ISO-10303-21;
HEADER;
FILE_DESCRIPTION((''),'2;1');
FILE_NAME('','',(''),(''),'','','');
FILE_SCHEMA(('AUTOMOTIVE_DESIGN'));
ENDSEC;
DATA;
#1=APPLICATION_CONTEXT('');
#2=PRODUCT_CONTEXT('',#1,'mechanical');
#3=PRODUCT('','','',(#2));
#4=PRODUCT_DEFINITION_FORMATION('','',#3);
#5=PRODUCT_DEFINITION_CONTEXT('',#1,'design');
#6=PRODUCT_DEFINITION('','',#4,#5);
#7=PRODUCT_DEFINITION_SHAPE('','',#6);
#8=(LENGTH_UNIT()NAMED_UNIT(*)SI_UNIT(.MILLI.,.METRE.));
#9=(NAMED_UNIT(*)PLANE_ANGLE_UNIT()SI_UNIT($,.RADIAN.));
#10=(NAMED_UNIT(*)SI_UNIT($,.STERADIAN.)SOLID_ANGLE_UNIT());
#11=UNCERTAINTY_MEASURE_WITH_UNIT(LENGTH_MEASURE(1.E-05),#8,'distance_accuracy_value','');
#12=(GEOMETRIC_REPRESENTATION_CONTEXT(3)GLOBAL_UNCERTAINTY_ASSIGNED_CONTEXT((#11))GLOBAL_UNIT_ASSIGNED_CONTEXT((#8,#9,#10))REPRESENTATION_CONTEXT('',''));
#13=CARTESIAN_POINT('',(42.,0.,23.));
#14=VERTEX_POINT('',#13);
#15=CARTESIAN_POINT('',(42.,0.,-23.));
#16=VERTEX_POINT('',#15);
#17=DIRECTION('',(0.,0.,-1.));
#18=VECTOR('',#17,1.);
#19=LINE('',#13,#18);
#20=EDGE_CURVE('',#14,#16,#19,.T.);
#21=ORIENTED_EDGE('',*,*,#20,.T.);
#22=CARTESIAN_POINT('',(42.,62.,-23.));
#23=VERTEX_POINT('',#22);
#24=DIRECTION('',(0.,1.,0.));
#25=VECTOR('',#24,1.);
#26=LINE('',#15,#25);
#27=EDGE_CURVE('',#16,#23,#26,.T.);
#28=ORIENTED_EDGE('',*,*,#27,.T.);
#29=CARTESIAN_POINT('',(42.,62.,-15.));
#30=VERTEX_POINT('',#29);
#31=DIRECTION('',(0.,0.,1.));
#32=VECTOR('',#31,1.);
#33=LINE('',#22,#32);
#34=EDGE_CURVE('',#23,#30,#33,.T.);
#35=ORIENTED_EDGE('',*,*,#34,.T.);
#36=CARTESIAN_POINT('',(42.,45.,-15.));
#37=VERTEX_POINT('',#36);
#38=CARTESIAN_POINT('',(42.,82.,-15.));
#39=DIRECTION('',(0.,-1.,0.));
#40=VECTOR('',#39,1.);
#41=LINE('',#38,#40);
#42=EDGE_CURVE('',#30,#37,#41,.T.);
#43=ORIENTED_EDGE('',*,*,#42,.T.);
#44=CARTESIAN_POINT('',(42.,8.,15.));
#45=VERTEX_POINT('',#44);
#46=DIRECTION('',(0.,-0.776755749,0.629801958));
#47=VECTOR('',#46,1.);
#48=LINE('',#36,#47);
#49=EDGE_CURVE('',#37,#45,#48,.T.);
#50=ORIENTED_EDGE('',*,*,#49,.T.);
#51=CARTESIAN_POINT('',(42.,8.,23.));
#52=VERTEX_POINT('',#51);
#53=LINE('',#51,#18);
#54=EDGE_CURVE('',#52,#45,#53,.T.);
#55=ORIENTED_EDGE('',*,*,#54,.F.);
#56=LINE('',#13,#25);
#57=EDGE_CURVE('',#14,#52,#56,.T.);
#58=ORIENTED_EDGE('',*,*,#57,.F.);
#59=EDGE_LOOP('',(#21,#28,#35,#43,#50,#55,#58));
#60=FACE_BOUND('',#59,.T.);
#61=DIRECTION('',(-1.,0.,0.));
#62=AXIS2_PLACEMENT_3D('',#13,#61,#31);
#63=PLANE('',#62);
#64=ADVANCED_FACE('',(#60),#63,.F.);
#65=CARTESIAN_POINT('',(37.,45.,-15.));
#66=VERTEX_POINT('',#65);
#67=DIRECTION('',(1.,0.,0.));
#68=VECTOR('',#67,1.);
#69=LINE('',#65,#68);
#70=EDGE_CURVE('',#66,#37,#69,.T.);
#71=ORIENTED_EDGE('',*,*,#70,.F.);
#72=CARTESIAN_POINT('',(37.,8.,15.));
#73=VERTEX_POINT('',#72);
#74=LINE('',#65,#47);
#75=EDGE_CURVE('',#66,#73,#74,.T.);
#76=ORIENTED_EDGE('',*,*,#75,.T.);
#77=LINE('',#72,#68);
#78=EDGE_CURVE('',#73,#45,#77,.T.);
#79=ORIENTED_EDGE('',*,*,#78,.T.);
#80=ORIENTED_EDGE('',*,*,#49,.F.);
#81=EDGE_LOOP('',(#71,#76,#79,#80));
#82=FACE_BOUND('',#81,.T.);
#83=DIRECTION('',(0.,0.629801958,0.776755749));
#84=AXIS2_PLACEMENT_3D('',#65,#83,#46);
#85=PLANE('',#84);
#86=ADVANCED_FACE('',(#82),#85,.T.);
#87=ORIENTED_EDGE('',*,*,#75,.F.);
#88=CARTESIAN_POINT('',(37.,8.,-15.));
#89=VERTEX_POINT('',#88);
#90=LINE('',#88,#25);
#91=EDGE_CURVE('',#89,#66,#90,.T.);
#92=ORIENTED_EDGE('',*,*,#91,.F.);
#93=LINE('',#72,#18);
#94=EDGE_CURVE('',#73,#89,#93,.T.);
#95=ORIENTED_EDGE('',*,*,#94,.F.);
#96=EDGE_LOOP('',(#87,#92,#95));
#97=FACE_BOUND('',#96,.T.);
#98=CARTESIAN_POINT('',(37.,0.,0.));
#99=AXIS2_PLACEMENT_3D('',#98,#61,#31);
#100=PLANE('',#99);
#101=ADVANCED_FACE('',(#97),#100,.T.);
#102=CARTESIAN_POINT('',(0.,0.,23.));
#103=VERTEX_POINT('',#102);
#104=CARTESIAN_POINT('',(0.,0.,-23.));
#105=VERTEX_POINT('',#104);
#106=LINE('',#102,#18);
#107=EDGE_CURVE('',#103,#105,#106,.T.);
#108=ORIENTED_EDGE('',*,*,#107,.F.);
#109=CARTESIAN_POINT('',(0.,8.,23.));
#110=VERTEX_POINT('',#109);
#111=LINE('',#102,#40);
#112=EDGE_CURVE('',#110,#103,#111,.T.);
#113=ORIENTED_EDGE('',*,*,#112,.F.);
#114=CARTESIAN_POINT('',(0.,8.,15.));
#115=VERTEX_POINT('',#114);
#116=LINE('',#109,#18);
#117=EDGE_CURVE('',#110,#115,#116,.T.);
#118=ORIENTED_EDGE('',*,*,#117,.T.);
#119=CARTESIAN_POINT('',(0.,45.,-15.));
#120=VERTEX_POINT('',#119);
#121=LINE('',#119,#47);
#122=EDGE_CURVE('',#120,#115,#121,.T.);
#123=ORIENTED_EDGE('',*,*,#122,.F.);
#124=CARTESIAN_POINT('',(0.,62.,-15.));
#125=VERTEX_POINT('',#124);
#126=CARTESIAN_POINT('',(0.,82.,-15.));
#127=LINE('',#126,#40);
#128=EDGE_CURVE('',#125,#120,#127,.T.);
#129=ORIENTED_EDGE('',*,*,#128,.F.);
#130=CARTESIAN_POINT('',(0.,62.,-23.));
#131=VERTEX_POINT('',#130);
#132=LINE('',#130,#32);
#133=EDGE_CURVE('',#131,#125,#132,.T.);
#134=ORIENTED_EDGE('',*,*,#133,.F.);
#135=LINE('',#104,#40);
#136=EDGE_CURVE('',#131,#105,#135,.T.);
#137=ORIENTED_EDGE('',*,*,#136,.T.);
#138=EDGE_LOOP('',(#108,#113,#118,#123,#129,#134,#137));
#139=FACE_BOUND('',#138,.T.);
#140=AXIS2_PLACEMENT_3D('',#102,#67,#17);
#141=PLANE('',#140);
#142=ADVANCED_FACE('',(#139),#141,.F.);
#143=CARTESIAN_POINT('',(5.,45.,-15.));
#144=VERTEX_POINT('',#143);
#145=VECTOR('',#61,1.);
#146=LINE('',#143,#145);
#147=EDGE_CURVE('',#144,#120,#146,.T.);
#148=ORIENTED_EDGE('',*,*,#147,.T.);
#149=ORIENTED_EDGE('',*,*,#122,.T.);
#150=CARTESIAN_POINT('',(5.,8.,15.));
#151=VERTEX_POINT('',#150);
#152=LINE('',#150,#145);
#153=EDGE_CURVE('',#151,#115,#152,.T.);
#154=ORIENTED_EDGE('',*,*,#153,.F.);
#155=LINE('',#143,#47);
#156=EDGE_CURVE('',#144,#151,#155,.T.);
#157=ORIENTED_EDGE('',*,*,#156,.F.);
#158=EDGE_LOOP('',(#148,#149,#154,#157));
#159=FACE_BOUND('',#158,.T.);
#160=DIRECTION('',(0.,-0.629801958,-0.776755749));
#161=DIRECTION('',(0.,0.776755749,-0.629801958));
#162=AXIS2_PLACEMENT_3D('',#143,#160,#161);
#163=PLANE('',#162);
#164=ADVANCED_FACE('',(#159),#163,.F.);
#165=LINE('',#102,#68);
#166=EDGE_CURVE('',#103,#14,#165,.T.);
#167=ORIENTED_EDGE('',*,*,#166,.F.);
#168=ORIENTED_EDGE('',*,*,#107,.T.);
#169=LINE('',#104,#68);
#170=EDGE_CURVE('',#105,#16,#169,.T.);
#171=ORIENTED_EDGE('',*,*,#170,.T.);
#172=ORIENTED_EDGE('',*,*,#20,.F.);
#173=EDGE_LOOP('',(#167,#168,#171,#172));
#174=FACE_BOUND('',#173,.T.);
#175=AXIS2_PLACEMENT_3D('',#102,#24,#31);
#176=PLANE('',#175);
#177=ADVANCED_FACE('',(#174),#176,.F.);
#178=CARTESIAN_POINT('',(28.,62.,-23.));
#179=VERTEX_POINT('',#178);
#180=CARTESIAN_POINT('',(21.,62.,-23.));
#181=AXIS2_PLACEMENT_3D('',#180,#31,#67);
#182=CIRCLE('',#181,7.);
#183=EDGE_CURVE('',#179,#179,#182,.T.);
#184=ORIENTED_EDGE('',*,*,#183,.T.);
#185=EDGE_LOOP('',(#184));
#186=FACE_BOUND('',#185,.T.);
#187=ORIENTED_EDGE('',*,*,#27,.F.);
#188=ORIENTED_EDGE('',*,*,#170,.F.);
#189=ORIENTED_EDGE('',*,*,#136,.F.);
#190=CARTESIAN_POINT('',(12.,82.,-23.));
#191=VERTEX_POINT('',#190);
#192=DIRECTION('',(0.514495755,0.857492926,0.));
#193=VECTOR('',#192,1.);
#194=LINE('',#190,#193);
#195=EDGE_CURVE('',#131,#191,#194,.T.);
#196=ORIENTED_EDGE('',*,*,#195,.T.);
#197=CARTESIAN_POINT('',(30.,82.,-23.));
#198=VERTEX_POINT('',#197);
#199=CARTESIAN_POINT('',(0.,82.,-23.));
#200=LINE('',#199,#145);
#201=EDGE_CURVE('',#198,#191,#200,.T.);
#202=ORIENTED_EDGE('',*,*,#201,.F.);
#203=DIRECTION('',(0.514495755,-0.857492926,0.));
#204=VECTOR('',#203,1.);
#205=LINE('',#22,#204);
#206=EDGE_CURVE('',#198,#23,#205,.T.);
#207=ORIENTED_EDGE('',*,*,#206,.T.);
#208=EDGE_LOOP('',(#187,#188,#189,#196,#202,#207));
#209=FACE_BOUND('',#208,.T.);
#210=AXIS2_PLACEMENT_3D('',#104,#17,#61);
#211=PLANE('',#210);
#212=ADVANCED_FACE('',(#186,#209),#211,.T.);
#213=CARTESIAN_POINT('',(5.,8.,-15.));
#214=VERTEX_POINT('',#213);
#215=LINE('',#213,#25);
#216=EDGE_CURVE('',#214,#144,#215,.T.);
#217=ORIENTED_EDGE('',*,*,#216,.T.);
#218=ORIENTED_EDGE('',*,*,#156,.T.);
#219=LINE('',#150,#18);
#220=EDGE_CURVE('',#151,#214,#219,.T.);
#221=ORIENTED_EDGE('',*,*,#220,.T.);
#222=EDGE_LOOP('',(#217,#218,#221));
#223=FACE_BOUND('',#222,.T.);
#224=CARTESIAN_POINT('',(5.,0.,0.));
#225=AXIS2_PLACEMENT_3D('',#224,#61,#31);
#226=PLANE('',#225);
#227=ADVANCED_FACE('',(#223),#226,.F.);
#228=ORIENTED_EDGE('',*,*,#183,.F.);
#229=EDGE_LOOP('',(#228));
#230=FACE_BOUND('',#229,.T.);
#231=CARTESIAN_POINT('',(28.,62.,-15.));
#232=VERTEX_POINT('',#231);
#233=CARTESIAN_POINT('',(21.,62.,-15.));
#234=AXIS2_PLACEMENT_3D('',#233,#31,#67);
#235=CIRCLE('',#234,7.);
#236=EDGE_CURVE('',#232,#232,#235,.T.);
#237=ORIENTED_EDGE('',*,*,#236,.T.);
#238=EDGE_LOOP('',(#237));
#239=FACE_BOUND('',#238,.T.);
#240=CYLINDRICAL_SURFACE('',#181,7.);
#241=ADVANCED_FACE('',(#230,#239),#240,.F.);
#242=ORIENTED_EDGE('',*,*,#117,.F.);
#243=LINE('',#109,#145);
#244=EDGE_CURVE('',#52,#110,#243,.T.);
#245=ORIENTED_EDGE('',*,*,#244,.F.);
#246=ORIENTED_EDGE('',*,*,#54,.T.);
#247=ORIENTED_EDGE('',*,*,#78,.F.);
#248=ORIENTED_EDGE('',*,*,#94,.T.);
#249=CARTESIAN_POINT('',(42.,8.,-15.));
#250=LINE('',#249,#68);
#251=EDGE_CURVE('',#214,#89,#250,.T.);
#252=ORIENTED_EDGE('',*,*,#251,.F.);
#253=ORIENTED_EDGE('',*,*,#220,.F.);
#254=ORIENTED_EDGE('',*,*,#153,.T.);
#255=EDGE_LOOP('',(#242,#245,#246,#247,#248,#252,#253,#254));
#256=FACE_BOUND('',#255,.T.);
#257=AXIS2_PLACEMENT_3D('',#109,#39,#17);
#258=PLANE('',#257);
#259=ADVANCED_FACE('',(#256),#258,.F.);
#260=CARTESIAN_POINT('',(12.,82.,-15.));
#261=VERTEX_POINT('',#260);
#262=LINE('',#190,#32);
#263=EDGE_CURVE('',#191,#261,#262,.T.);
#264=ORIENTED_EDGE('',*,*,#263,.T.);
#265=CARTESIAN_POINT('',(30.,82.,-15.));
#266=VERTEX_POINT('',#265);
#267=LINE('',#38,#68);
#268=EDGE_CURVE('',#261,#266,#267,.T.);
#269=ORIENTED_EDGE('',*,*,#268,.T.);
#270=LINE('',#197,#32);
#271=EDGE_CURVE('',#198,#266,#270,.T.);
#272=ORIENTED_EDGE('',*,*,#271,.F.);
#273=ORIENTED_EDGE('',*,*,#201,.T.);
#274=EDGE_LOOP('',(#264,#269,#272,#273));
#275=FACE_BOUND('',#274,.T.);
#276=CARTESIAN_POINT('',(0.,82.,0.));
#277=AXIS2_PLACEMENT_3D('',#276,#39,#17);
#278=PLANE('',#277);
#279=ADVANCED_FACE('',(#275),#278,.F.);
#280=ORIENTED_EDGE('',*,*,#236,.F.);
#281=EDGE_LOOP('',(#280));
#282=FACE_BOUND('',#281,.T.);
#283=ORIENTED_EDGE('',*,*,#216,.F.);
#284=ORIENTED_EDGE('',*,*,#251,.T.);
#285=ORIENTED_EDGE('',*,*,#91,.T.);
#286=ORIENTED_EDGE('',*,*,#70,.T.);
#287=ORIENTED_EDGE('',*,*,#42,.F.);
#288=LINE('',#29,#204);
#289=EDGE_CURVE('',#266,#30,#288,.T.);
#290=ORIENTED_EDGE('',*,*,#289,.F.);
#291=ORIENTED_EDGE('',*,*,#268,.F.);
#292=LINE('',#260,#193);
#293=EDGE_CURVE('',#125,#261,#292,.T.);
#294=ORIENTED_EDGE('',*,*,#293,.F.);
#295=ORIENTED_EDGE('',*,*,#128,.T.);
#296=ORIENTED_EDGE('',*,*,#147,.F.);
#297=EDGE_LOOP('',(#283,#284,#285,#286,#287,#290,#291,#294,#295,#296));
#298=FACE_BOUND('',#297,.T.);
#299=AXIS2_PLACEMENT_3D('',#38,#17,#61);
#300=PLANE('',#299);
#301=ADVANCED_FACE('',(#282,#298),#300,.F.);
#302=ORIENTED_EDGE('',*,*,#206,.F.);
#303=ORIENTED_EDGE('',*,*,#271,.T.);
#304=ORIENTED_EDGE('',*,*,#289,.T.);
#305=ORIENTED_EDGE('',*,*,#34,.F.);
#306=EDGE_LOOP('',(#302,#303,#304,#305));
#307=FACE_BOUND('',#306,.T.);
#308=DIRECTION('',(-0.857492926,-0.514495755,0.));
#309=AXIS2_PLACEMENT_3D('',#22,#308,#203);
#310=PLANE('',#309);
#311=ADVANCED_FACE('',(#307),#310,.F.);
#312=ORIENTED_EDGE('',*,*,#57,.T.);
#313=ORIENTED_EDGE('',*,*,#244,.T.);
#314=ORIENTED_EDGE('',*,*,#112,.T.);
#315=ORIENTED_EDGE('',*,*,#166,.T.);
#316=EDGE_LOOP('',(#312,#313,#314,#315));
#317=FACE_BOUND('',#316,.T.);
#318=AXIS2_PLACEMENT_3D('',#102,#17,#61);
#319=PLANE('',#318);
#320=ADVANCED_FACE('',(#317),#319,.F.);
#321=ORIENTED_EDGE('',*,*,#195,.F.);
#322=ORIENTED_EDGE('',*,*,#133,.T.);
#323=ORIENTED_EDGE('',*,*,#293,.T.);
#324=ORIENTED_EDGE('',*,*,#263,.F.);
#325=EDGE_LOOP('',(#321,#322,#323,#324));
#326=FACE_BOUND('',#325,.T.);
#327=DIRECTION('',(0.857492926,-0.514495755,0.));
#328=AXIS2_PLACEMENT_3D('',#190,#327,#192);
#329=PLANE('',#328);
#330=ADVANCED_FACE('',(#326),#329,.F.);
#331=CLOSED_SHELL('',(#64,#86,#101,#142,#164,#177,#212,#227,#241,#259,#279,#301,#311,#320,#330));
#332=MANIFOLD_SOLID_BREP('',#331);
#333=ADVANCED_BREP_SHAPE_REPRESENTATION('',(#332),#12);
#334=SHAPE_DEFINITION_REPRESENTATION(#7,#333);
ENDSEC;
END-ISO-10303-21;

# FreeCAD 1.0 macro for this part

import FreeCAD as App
import Part
import Sketcher

V = App.Vector

doc = App.newDocument("Part")
params = doc.addObject("Spreadsheet::Sheet", "Params")
for row, (alias, value) in enumerate([
    ("sketch1_width", "42 mm"),
    ("sketch1_height", "8 mm"),
    ("pad1_length", "46 mm"),
    ("sketch2_width", "42 mm"),
    ("sketch2_height", "8 mm"),
    ("pad2_length", "74 mm"),
    ("sketch3_width", "12 mm"),
    ("sketch3_height", "20 mm"),
    ("sketch4_width", "37 mm"),
    ("sketch4_height", "30 mm"),
    ("pad3_length", "5 mm"),
    ("sketch5_width", "37 mm"),
    ("sketch5_height", "30 mm"),
    ("pad4_length", "5 mm"),
    ("sketch6_diameter", "14 mm"),
], start=1):
    params.set(f"A{row}", alias)
    params.set(f"B{row}", "=" + value)
    params.setAlias(f"B{row}", alias)

body = doc.addObject("PartDesign::Body", "Body")

# Sketch on XY plane
sketch1 = doc.addObject("Sketcher::SketchObject", "Sketch")
body.addObject(sketch1)
sketch1.AttachmentSupport = (doc.XY_Plane, [""])
sketch1.MapMode = "FlatFace"
sketch1.addGeometry([
    Part.LineSegment(V(0, 8, 0), V(0, 0, 0)),
    Part.LineSegment(V(0, 0, 0), V(42, 0, 0)),
    Part.LineSegment(V(42, 0, 0), V(42, 8, 0)),
    Part.LineSegment(V(42, 8, 0), V(0, 8, 0)),
], False)
sketch1.addConstraint([
    Sketcher.Constraint("Coincident", 0, 2, 1, 1),
    Sketcher.Constraint("Coincident", 1, 2, 2, 1),
    Sketcher.Constraint("Coincident", 2, 2, 3, 1),
    Sketcher.Constraint("Coincident", 3, 2, 0, 1),
    Sketcher.Constraint("Vertical", 0),
    Sketcher.Constraint("Horizontal", 1),
    Sketcher.Constraint("Vertical", 2),
    Sketcher.Constraint("Horizontal", 3),
    Sketcher.Constraint("Coincident", 0, 2, -1, 1),
    Sketcher.Constraint("DistanceX", 1, 1, 1, 2, 42.0),
    Sketcher.Constraint("DistanceY", 0, 2, 0, 1, 8.0),
])
sketch1.setExpression("Constraints[9]", "Params.sketch1_width")
sketch1.setExpression("Constraints[10]", "Params.sketch1_height")
pad1 = doc.addObject("PartDesign::Pad", "Pad")
body.addObject(pad1)
pad1.Profile = sketch1
pad1.setExpression("Length", "Params.pad1_length")
pad1.Midplane = True

# Sketch on XZ plane
sketch2 = doc.addObject("Sketcher::SketchObject", "Sketch001")
body.addObject(sketch2)
sketch2.AttachmentSupport = (doc.XZ_Plane, [""])
sketch2.MapMode = "FlatFace"
sketch2.AttachmentOffset = App.Placement(V(0, 0, -8), App.Rotation())
sketch2.addGeometry([
    Part.LineSegment(V(0, -23, 0), V(0, -15, 0)),
    Part.LineSegment(V(0, -15, 0), V(42, -15, 0)),
    Part.LineSegment(V(42, -15, 0), V(42, -23, 0)),
    Part.LineSegment(V(42, -23, 0), V(0, -23, 0)),
], False)
sketch2.addConstraint([
    Sketcher.Constraint("Coincident", 0, 2, 1, 1),
    Sketcher.Constraint("Coincident", 1, 2, 2, 1),
    Sketcher.Constraint("Coincident", 2, 2, 3, 1),
    Sketcher.Constraint("Coincident", 3, 2, 0, 1),
    Sketcher.Constraint("Vertical", 0),
    Sketcher.Constraint("Horizontal", 1),
    Sketcher.Constraint("Vertical", 2),
    Sketcher.Constraint("Horizontal", 3),
    Sketcher.Constraint("PointOnObject", 0, 2, -2),
    Sketcher.Constraint("DistanceX", 1, 1, 1, 2, 42.0),
    Sketcher.Constraint("DistanceY", 0, 1, 0, 2, 8.0),
    Sketcher.Constraint("DistanceY", 0, 2, -1, 1, 15.0),
])
sketch2.setExpression("Constraints[9]", "Params.sketch2_width")
sketch2.setExpression("Constraints[10]", "Params.sketch2_height")
pad2 = doc.addObject("PartDesign::Pad", "Pad001")
body.addObject(pad2)
pad2.Profile = sketch2
pad2.setExpression("Length", "Params.pad2_length")
pad2.Reversed = True

# Sketch on XY plane
sketch3 = doc.addObject("Sketcher::SketchObject", "Sketch002")
body.addObject(sketch3)
sketch3.AttachmentSupport = (doc.XY_Plane, [""])
sketch3.MapMode = "FlatFace"
sketch3.AttachmentOffset = App.Placement(V(0, 0, -15), App.Rotation())
sketch3.addGeometry([
    Part.LineSegment(V(12, 82, 0), V(0, 82, 0)),  # 0
    Part.LineSegment(V(0, 82, 0), V(0, 62, 0)),  # 1
    Part.LineSegment(V(0, 62, 0), V(12, 82, 0)),  # 2
    Part.LineSegment(V(42, 82, 0), V(30, 82, 0)),  # 3
    Part.LineSegment(V(30, 82, 0), V(42, 62, 0)),  # 4
    Part.LineSegment(V(42, 62, 0), V(42, 82, 0)),  # 5
], False)
sketch3.addConstraint([
    Sketcher.Constraint("Coincident", 0, 2, 1, 1),
    Sketcher.Constraint("Coincident", 1, 2, 2, 1),
    Sketcher.Constraint("Coincident", 2, 2, 0, 1),
    Sketcher.Constraint("Coincident", 3, 2, 4, 1),
    Sketcher.Constraint("Coincident", 4, 2, 5, 1),
    Sketcher.Constraint("Coincident", 5, 2, 3, 1),
    Sketcher.Constraint("Horizontal", 0),
    Sketcher.Constraint("Vertical", 1),
    Sketcher.Constraint("Horizontal", 3),
    Sketcher.Constraint("Vertical", 5),
    Sketcher.Constraint("PointOnObject", 0, 2, -2),
    Sketcher.Constraint("Horizontal", 2, 2, 3, 2),
    Sketcher.Constraint("Horizontal", 1, 2, 4, 2),
    Sketcher.Constraint("Equal", 0, 3),
    Sketcher.Constraint("DistanceX", 0, 2, 0, 1, 12.0),
    Sketcher.Constraint("DistanceY", 1, 2, 1, 1, 20.0),
    Sketcher.Constraint("DistanceY", -1, 1, 0, 2, 82.0),
    Sketcher.Constraint("DistanceX", -1, 1, 3, 2, 30.0),
])
sketch3.setExpression("Constraints[14]", "Params.sketch3_width")
sketch3.setExpression("Constraints[15]", "Params.sketch3_height")
pocket1 = doc.addObject("PartDesign::Pocket", "Pocket")
body.addObject(pocket1)
pocket1.Profile = sketch3
pocket1.Type = "ThroughAll"

# Sketch on YZ plane
sketch4 = doc.addObject("Sketcher::SketchObject", "Sketch003")
body.addObject(sketch4)
sketch4.AttachmentSupport = (doc.YZ_Plane, [""])
sketch4.MapMode = "FlatFace"
sketch4.addGeometry([
    Part.LineSegment(V(45, -15, 0), V(8, 15, 0)),
    Part.LineSegment(V(8, 15, 0), V(8, -15, 0)),
    Part.LineSegment(V(8, -15, 0), V(45, -15, 0)),
], False)
sketch4.addConstraint([
    Sketcher.Constraint("Coincident", 0, 2, 1, 1),
    Sketcher.Constraint("Coincident", 1, 2, 2, 1),
    Sketcher.Constraint("Coincident", 2, 2, 0, 1),
    Sketcher.Constraint("Vertical", 1),
    Sketcher.Constraint("Horizontal", 2),
    Sketcher.Constraint("DistanceX", 2, 1, 2, 2, 37.0),
    Sketcher.Constraint("DistanceY", 1, 2, 1, 1, 30.0),
    Sketcher.Constraint("DistanceX", -1, 1, 0, 2, 8.0),
    Sketcher.Constraint("DistanceY", -1, 1, 0, 2, 15.0),
])
sketch4.setExpression("Constraints[5]", "Params.sketch4_width")
sketch4.setExpression("Constraints[6]", "Params.sketch4_height")
pad3 = doc.addObject("PartDesign::Pad", "Pad002")
body.addObject(pad3)
pad3.Profile = sketch4
pad3.setExpression("Length", "Params.pad3_length")

# Sketch on YZ plane
sketch5 = doc.addObject("Sketcher::SketchObject", "Sketch004")
body.addObject(sketch5)
sketch5.AttachmentSupport = (doc.YZ_Plane, [""])
sketch5.MapMode = "FlatFace"
sketch5.AttachmentOffset = App.Placement(V(0, 0, 42), App.Rotation())
sketch5.addGeometry([
    Part.LineSegment(V(45, -15, 0), V(8, 15, 0)),
    Part.LineSegment(V(8, 15, 0), V(8, -15, 0)),
    Part.LineSegment(V(8, -15, 0), V(45, -15, 0)),
], False)
sketch5.addConstraint([
    Sketcher.Constraint("Coincident", 0, 2, 1, 1),
    Sketcher.Constraint("Coincident", 1, 2, 2, 1),
    Sketcher.Constraint("Coincident", 2, 2, 0, 1),
    Sketcher.Constraint("Vertical", 1),
    Sketcher.Constraint("Horizontal", 2),
    Sketcher.Constraint("DistanceX", 2, 1, 2, 2, 37.0),
    Sketcher.Constraint("DistanceY", 1, 2, 1, 1, 30.0),
    Sketcher.Constraint("DistanceX", -1, 1, 0, 2, 8.0),
    Sketcher.Constraint("DistanceY", -1, 1, 0, 2, 15.0),
])
sketch5.setExpression("Constraints[5]", "Params.sketch5_width")
sketch5.setExpression("Constraints[6]", "Params.sketch5_height")
pad4 = doc.addObject("PartDesign::Pad", "Pad003")
body.addObject(pad4)
pad4.Profile = sketch5
pad4.setExpression("Length", "Params.pad4_length")
pad4.Reversed = True

# Sketch on XY plane
sketch6 = doc.addObject("Sketcher::SketchObject", "Sketch005")
body.addObject(sketch6)
sketch6.AttachmentSupport = (doc.XY_Plane, [""])
sketch6.MapMode = "FlatFace"
sketch6.AttachmentOffset = App.Placement(V(0, 0, -15), App.Rotation())
sketch6.addGeometry(Part.Circle(V(21, 62, 0), V(0, 0, 1), 7), False)
sketch6.addConstraint([
    Sketcher.Constraint("Diameter", 0, 14.0),
    Sketcher.Constraint("DistanceX", -1, 1, 0, 3, 21.0),
    Sketcher.Constraint("DistanceY", -1, 1, 0, 3, 62.0),
])
sketch6.setExpression("Constraints[0]", "Params.sketch6_diameter")
pocket2 = doc.addObject("PartDesign::Pocket", "Pocket001")
body.addObject(pocket2)
pocket2.Profile = sketch6
pocket2.Type = "ThroughAll"

doc.recompute()
